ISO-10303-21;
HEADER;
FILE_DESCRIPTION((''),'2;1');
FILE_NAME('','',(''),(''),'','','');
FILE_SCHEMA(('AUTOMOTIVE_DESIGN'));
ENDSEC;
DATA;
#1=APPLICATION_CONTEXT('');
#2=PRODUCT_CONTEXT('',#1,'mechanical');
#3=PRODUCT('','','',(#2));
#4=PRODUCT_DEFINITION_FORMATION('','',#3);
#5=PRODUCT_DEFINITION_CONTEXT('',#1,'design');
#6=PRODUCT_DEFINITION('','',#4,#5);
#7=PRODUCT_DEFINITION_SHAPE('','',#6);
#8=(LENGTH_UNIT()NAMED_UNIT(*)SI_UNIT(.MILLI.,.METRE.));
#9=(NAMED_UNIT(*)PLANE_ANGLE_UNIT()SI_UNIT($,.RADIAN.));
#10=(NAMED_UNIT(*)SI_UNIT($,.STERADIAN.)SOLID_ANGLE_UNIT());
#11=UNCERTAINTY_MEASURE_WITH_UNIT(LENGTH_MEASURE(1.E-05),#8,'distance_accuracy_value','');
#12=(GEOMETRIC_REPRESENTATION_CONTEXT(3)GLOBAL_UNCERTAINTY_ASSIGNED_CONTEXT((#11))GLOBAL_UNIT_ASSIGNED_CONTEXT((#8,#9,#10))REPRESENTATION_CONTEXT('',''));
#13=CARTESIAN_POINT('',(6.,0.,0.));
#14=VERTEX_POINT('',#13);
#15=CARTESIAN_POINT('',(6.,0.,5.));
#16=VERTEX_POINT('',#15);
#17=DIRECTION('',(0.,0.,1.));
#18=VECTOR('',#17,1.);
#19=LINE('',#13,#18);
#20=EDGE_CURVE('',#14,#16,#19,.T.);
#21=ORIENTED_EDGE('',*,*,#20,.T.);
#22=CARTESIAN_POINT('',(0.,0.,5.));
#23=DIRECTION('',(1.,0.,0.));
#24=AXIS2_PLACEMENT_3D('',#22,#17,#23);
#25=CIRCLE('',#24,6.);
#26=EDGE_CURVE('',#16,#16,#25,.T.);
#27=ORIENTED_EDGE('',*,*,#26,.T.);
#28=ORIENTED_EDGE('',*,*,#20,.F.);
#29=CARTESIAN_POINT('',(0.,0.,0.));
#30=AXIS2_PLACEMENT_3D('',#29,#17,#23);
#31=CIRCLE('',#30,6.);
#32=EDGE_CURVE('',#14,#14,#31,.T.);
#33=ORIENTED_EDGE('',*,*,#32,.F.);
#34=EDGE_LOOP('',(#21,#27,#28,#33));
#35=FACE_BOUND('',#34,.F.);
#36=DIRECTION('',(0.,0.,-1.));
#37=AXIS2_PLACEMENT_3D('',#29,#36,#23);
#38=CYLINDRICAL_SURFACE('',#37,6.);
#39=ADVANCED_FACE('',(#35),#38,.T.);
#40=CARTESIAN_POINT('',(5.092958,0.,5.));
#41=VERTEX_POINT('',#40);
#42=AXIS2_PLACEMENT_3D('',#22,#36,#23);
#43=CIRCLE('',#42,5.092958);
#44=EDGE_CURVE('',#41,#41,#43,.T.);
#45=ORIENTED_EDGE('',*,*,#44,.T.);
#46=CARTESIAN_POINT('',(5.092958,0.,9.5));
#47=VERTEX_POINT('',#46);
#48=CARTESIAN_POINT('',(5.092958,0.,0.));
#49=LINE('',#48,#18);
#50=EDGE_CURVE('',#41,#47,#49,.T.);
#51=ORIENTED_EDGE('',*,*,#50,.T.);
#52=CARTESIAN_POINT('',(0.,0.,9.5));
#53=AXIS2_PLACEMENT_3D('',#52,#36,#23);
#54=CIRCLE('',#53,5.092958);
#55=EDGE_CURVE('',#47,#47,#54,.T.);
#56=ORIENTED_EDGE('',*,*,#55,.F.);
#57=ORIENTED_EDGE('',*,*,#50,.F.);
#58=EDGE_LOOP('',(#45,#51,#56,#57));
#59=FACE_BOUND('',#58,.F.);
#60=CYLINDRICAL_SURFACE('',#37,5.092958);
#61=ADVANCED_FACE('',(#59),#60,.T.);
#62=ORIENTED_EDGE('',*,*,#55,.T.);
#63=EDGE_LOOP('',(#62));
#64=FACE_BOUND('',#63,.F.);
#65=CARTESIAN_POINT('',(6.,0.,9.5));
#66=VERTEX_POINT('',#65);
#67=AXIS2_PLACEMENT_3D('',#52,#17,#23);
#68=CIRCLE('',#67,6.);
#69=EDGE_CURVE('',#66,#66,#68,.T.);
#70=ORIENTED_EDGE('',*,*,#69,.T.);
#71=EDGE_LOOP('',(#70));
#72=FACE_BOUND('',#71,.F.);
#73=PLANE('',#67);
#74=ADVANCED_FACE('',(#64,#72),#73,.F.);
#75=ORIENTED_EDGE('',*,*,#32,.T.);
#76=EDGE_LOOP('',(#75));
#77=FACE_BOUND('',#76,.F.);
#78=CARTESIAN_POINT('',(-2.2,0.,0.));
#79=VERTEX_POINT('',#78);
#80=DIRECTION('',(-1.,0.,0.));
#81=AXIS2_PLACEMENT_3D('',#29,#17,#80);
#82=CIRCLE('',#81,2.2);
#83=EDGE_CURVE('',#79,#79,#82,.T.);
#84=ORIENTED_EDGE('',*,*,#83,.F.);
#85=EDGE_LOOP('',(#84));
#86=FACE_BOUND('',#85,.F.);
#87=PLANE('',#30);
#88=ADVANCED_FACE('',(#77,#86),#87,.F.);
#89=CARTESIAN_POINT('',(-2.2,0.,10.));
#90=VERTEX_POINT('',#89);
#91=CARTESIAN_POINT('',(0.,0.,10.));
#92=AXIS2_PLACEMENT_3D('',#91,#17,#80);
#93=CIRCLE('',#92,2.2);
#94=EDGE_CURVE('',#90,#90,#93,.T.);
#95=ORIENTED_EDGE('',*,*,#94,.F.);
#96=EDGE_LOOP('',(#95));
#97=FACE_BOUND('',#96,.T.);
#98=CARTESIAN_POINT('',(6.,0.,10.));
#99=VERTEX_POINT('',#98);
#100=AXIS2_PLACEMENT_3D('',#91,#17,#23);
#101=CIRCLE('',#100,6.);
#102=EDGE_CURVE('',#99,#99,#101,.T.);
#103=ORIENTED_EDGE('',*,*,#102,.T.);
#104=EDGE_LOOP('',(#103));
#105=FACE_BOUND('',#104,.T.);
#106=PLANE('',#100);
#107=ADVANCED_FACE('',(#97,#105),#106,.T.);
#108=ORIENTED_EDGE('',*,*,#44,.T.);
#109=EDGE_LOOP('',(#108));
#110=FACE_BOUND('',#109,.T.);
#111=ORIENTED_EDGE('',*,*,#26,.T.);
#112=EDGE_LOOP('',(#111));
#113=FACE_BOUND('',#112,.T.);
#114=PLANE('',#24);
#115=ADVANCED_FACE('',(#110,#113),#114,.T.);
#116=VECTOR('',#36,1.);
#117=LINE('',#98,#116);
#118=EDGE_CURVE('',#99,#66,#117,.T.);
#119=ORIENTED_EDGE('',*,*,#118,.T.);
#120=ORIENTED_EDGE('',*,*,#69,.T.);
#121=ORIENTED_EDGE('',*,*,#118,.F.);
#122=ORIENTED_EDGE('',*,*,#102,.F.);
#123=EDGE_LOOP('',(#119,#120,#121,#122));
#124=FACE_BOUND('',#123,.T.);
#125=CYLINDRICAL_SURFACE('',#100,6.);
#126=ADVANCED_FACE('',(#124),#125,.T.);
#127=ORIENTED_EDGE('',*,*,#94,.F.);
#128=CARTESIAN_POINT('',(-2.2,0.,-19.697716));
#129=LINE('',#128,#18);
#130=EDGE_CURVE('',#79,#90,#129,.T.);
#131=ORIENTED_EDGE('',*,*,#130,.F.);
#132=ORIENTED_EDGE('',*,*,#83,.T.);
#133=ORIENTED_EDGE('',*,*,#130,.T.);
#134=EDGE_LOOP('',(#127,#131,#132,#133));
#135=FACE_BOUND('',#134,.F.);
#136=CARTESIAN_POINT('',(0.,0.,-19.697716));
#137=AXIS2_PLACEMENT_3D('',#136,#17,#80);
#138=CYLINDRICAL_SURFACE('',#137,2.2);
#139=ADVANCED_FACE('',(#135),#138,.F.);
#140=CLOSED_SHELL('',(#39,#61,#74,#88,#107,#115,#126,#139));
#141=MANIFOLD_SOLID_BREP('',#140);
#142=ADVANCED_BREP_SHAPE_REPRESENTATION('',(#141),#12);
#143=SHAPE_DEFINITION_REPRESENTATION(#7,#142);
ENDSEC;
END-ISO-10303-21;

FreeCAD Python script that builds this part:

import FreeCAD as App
import Part
import Sketcher

V = App.Vector

doc = App.newDocument("Part")
body = doc.addObject("PartDesign::Body", "Body")

# Sketch on XY plane
sketch1 = doc.addObject("Sketcher::SketchObject", "Sketch")
body.addObject(sketch1)
sketch1.AttachmentSupport = (doc.XY_Plane, [""])
sketch1.MapMode = "FlatFace"
sketch1.addGeometry(Part.Circle(V(0, 0, 0), V(0, 0, 1), 6), False)
sketch1.addConstraint([
    Sketcher.Constraint("Coincident", 0, 3, -1, 1),
    Sketcher.Constraint("Diameter", 0, 12.0),
])
pad1 = doc.addObject("PartDesign::Pad", "Pad")
body.addObject(pad1)
pad1.Profile = sketch1
pad1.Length = 5

# Sketch on XY plane
sketch2 = doc.addObject("Sketcher::SketchObject", "Sketch001")
body.addObject(sketch2)
sketch2.AttachmentSupport = (doc.XY_Plane, [""])
sketch2.MapMode = "FlatFace"
sketch2.addGeometry(Part.Circle(V(0, 0, 0), V(0, 0, 1), 5), False)
sketch2.addConstraint([
    Sketcher.Constraint("Coincident", 0, 3, -1, 1),
    Sketcher.Constraint("Diameter", 0, 10.185916),
])
pad2 = doc.addObject("PartDesign::Pad", "Pad001")
body.addObject(pad2)
pad2.Profile = sketch2
pad2.Length = 10

# Sketch on XY plane
sketch3 = doc.addObject("Sketcher::SketchObject", "Sketch002")
body.addObject(sketch3)
sketch3.AttachmentSupport = (doc.XY_Plane, [""])
sketch3.MapMode = "FlatFace"
sketch3.AttachmentOffset = App.Placement(V(0, 0, 10), App.Rotation())
sketch3.addGeometry(Part.Circle(V(0, 0, 0), V(0, 0, 1), 6), False)
sketch3.addConstraint([
    Sketcher.Constraint("Coincident", 0, 3, -1, 1),
    Sketcher.Constraint("Diameter", 0, 12.0),
])
pad3 = doc.addObject("PartDesign::Pad", "Pad002")
body.addObject(pad3)
pad3.Profile = sketch3
pad3.Length = 0.5
pad3.Reversed = True

# Sketch on XY plane
sketch4 = doc.addObject("Sketcher::SketchObject", "Sketch003")
body.addObject(sketch4)
sketch4.AttachmentSupport = (doc.XY_Plane, [""])
sketch4.MapMode = "FlatFace"
sketch4.addGeometry(Part.Circle(V(0, 0, 0), V(0, 0, 1), 2.2), False)
sketch4.addConstraint([
    Sketcher.Constraint("Coincident", 0, 3, -1, 1),
    Sketcher.Constraint("Diameter", 0, 4.4),
])
doc.recompute()
hole = doc.addObject("PartDesign::Hole", "Hole")
body.addObject(hole)
hole.Profile = sketch4
hole.ThreadType = "None"
hole.Diameter = 4.4
hole.DepthType = "ThroughAll"
hole.Reversed = True

doc.recompute()
